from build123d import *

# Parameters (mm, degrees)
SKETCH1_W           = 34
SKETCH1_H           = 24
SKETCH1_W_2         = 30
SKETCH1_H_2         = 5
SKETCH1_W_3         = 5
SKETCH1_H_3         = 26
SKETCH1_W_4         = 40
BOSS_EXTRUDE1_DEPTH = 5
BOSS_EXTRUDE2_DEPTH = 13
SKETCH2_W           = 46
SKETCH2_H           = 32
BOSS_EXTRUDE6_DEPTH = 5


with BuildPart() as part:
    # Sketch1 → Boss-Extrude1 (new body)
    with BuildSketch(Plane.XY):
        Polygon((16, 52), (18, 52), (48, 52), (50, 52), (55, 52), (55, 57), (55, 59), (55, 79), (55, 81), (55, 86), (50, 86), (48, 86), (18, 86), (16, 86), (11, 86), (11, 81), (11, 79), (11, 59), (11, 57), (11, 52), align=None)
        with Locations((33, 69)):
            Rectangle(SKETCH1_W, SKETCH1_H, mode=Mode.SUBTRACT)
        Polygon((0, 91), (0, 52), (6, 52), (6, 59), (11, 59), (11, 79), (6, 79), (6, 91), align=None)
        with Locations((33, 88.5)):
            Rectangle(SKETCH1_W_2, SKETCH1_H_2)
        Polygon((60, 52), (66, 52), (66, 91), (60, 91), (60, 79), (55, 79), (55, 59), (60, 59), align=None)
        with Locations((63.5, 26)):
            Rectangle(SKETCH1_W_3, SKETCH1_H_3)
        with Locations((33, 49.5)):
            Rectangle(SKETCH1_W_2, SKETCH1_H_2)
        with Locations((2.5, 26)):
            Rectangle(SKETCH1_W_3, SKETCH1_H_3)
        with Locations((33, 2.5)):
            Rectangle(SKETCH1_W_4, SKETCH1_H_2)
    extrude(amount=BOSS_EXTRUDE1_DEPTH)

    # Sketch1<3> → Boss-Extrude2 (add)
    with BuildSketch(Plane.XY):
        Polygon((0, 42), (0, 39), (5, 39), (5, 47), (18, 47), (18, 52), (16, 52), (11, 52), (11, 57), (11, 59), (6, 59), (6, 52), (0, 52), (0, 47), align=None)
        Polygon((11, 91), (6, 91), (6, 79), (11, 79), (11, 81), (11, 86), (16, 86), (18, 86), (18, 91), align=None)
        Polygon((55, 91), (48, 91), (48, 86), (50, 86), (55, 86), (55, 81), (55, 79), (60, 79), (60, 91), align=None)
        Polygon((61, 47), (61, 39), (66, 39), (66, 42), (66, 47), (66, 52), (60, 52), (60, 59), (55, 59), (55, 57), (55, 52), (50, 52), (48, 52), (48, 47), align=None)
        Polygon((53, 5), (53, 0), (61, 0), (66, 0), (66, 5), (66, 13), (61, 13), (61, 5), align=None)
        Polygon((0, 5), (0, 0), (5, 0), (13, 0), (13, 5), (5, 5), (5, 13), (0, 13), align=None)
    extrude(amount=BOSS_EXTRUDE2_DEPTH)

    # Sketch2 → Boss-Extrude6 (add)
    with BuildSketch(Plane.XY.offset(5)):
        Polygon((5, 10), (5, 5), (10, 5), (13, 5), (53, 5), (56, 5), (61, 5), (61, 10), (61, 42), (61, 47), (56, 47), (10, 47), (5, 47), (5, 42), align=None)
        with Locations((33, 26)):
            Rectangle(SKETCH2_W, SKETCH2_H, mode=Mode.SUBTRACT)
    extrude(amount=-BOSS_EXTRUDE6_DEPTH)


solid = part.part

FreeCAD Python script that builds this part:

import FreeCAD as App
import Part
import Sketcher
from FreeCAD import Vector

doc = App.newDocument("Part")
body = doc.addObject("PartDesign::Body", "Body")
body.AllowCompound = True

# Sketch on XY plane
sketch1 = body.newObject("Sketcher::SketchObject", "Sketch")
sketch1.AttachmentSupport = (doc.getObject("XY_Plane"), [""])
sketch1.MapMode = "FlatFace"
sketch1.addGeometry([
    Part.LineSegment(Vector(55, 52, 0), Vector(55, 59, 0)),  # 0
    Part.LineSegment(Vector(55, 59, 0), Vector(60, 59, 0)),  # 1
    Part.LineSegment(Vector(60, 59, 0), Vector(60, 52, 0)),  # 2
    Part.LineSegment(Vector(60, 52, 0), Vector(66, 52, 0)),  # 3
    Part.LineSegment(Vector(66, 52, 0), Vector(66, 91, 0)),  # 4
    Part.LineSegment(Vector(66, 91, 0), Vector(60, 91, 0)),  # 5
    Part.LineSegment(Vector(60, 91, 0), Vector(60, 79, 0)),  # 6
    Part.LineSegment(Vector(60, 79, 0), Vector(55, 79, 0)),  # 7
    Part.LineSegment(Vector(55, 79, 0), Vector(55, 86, 0)),  # 8
    Part.LineSegment(Vector(55, 86, 0), Vector(48, 86, 0)),  # 9
    Part.LineSegment(Vector(48, 86, 0), Vector(48, 91, 0)),  # 10
    Part.LineSegment(Vector(48, 91, 0), Vector(18, 91, 0)),  # 11
    Part.LineSegment(Vector(18, 91, 0), Vector(18, 86, 0)),  # 12
    Part.LineSegment(Vector(18, 86, 0), Vector(11, 86, 0)),  # 13
    Part.LineSegment(Vector(11, 86, 0), Vector(11, 79, 0)),  # 14
    Part.LineSegment(Vector(11, 79, 0), Vector(6, 79, 0)),  # 15
    Part.LineSegment(Vector(6, 79, 0), Vector(6, 91, 0)),  # 16
    Part.LineSegment(Vector(6, 91, 0), Vector(0, 91, 0)),  # 17
    Part.LineSegment(Vector(0, 91, 0), Vector(0, 52, 0)),  # 18
    Part.LineSegment(Vector(0, 52, 0), Vector(6, 52, 0)),  # 19
    Part.LineSegment(Vector(6, 52, 0), Vector(6, 59, 0)),  # 20
    Part.LineSegment(Vector(6, 59, 0), Vector(11, 59, 0)),  # 21
    Part.LineSegment(Vector(11, 59, 0), Vector(11, 52, 0)),  # 22
    Part.LineSegment(Vector(11, 52, 0), Vector(18, 52, 0)),  # 23
    Part.LineSegment(Vector(18, 52, 0), Vector(18, 47, 0)),  # 24
    Part.LineSegment(Vector(18, 47, 0), Vector(48, 47, 0)),  # 25
    Part.LineSegment(Vector(48, 47, 0), Vector(48, 52, 0)),  # 26
    Part.LineSegment(Vector(48, 52, 0), Vector(55, 52, 0)),  # 27
    Part.LineSegment(Vector(50, 57, 0), Vector(16, 57, 0)),  # 28
    Part.LineSegment(Vector(16, 57, 0), Vector(16, 81, 0)),  # 29
    Part.LineSegment(Vector(16, 81, 0), Vector(50, 81, 0)),  # 30
    Part.LineSegment(Vector(50, 81, 0), Vector(50, 57, 0)),  # 31
    Part.LineSegment(Vector(61, 39, 0), Vector(61, 13, 0)),  # 32
    Part.LineSegment(Vector(61, 13, 0), Vector(66, 13, 0)),  # 33
    Part.LineSegment(Vector(66, 13, 0), Vector(66, 39, 0)),  # 34
    Part.LineSegment(Vector(66, 39, 0), Vector(61, 39, 0)),  # 35
    Part.LineSegment(Vector(0, 39, 0), Vector(0, 13, 0)),  # 36
    Part.LineSegment(Vector(0, 13, 0), Vector(5, 13, 0)),  # 37
    Part.LineSegment(Vector(5, 13, 0), Vector(5, 39, 0)),  # 38
    Part.LineSegment(Vector(5, 39, 0), Vector(0, 39, 0)),  # 39
    Part.LineSegment(Vector(13, 5, 0), Vector(13, 0, 0)),  # 40
    Part.LineSegment(Vector(13, 0, 0), Vector(53, 0, 0)),  # 41
    Part.LineSegment(Vector(53, 0, 0), Vector(53, 5, 0)),  # 42
    Part.LineSegment(Vector(53, 5, 0), Vector(13, 5, 0)),  # 43
], False)
sketch1.addConstraint([
    Sketcher.Constraint("Coincident", 0, 2, 1, 1),
    Sketcher.Constraint("Coincident", 1, 2, 2, 1),
    Sketcher.Constraint("Coincident", 2, 2, 3, 1),
    Sketcher.Constraint("Coincident", 3, 2, 4, 1),
    Sketcher.Constraint("Coincident", 4, 2, 5, 1),
    Sketcher.Constraint("Coincident", 5, 2, 6, 1),
    Sketcher.Constraint("Coincident", 6, 2, 7, 1),
    Sketcher.Constraint("Coincident", 7, 2, 8, 1),
    Sketcher.Constraint("Coincident", 8, 2, 9, 1),
    Sketcher.Constraint("Coincident", 9, 2, 10, 1),
    Sketcher.Constraint("Coincident", 10, 2, 11, 1),
    Sketcher.Constraint("Coincident", 11, 2, 12, 1),
    Sketcher.Constraint("Coincident", 12, 2, 13, 1),
    Sketcher.Constraint("Coincident", 13, 2, 14, 1),
    Sketcher.Constraint("Coincident", 14, 2, 15, 1),
    Sketcher.Constraint("Coincident", 15, 2, 16, 1),
    Sketcher.Constraint("Coincident", 16, 2, 17, 1),
    Sketcher.Constraint("Coincident", 17, 2, 18, 1),
    Sketcher.Constraint("Coincident", 18, 2, 19, 1),
    Sketcher.Constraint("Coincident", 19, 2, 20, 1),
    Sketcher.Constraint("Coincident", 20, 2, 21, 1),
    Sketcher.Constraint("Coincident", 21, 2, 22, 1),
    Sketcher.Constraint("Coincident", 22, 2, 23, 1),
    Sketcher.Constraint("Coincident", 23, 2, 24, 1),
    Sketcher.Constraint("Coincident", 24, 2, 25, 1),
    Sketcher.Constraint("Coincident", 25, 2, 26, 1),
    Sketcher.Constraint("Coincident", 26, 2, 27, 1),
    Sketcher.Constraint("Coincident", 27, 2, 0, 1),
    Sketcher.Constraint("Coincident", 28, 2, 29, 1),
    Sketcher.Constraint("Coincident", 29, 2, 30, 1),
    Sketcher.Constraint("Coincident", 30, 2, 31, 1),
    Sketcher.Constraint("Coincident", 31, 2, 28, 1),
    Sketcher.Constraint("Coincident", 32, 2, 33, 1),
    Sketcher.Constraint("Coincident", 33, 2, 34, 1),
    Sketcher.Constraint("Coincident", 34, 2, 35, 1),
    Sketcher.Constraint("Coincident", 35, 2, 32, 1),
    Sketcher.Constraint("Coincident", 36, 2, 37, 1),
    Sketcher.Constraint("Coincident", 37, 2, 38, 1),
    Sketcher.Constraint("Coincident", 38, 2, 39, 1),
    Sketcher.Constraint("Coincident", 39, 2, 36, 1),
    Sketcher.Constraint("Coincident", 40, 2, 41, 1),
    Sketcher.Constraint("Coincident", 41, 2, 42, 1),
    Sketcher.Constraint("Coincident", 42, 2, 43, 1),
    Sketcher.Constraint("Coincident", 43, 2, 40, 1),
    Sketcher.Constraint("Vertical", 0),
    Sketcher.Constraint("Horizontal", 1),
    Sketcher.Constraint("Vertical", 2),
    Sketcher.Constraint("Horizontal", 3),
    Sketcher.Constraint("Vertical", 4),
    Sketcher.Constraint("Horizontal", 5),
    Sketcher.Constraint("Vertical", 6),
    Sketcher.Constraint("Horizontal", 7),
    Sketcher.Constraint("Vertical", 8),
    Sketcher.Constraint("Horizontal", 9),
    Sketcher.Constraint("Vertical", 10),
    Sketcher.Constraint("Horizontal", 11),
    Sketcher.Constraint("Vertical", 12),
    Sketcher.Constraint("Horizontal", 13),
    Sketcher.Constraint("Vertical", 14),
    Sketcher.Constraint("Horizontal", 15),
    Sketcher.Constraint("Vertical", 16),
    Sketcher.Constraint("Horizontal", 17),
    Sketcher.Constraint("Vertical", 18),
    Sketcher.Constraint("Horizontal", 19),
    Sketcher.Constraint("Vertical", 20),
    Sketcher.Constraint("Horizontal", 21),
    Sketcher.Constraint("Vertical", 22),
    Sketcher.Constraint("Horizontal", 23),
    Sketcher.Constraint("Vertical", 24),
    Sketcher.Constraint("Horizontal", 25),
    Sketcher.Constraint("Vertical", 26),
    Sketcher.Constraint("Horizontal", 27),
    Sketcher.Constraint("Horizontal", 28),
    Sketcher.Constraint("Vertical", 29),
    Sketcher.Constraint("Horizontal", 30),
    Sketcher.Constraint("Vertical", 31),
    Sketcher.Constraint("Vertical", 32),
    Sketcher.Constraint("Horizontal", 33),
    Sketcher.Constraint("Vertical", 34),
    Sketcher.Constraint("Horizontal", 35),
    Sketcher.Constraint("Vertical", 36),
    Sketcher.Constraint("Horizontal", 37),
    Sketcher.Constraint("Vertical", 38),
    Sketcher.Constraint("Horizontal", 39),
    Sketcher.Constraint("Vertical", 40),
    Sketcher.Constraint("Horizontal", 41),
    Sketcher.Constraint("Vertical", 42),
    Sketcher.Constraint("Horizontal", 43),
    Sketcher.Constraint("PointOnObject", 17, 2, -2),
    Sketcher.Constraint("PointOnObject", 36, 2, -2),
    Sketcher.Constraint("PointOnObject", 40, 2, -1),
    Sketcher.Constraint("Horizontal", 5, 2, 10, 2),
    Sketcher.Constraint("Horizontal", 9, 2, 12, 2),
    Sketcher.Constraint("Horizontal", 7, 2, 14, 2),
    Sketcher.Constraint("Horizontal", 11, 2, 16, 2),
    Sketcher.Constraint("Horizontal", 3, 2, 18, 2),
    Sketcher.Constraint("Horizontal", 1, 2, 20, 2),
    Sketcher.Constraint("Horizontal", 19, 2, 22, 2),
    Sketcher.Constraint("Horizontal", 23, 2, 26, 2),
    Sketcher.Constraint("Horizontal", 33, 2, 36, 2),
    Sketcher.Constraint("Horizontal", 35, 2, 38, 2),
    Sketcher.Constraint("Vertical", 2, 2, 5, 2),
    Sketcher.Constraint("Vertical", 0, 2, 7, 2),
    Sketcher.Constraint("Vertical", 16, 2, 19, 2),
    Sketcher.Constraint("Vertical", 14, 2, 21, 2),
    Sketcher.Constraint("Vertical", 12, 2, 23, 2),
    Sketcher.Constraint("Vertical", 10, 2, 25, 2),
    Sketcher.Constraint("Vertical", 4, 2, 33, 2),
    Sketcher.Constraint("Equal", 9, 13),
    Sketcher.Constraint("Equal", 7, 15),
    Sketcher.Constraint("Equal", 5, 17),
    Sketcher.Constraint("Equal", 21, 33),
    Sketcher.Constraint("Equal", 35, 37),
    Sketcher.Constraint("Equal", 27, 0),
    Sketcher.Constraint("Equal", 2, 8),
    Sketcher.Constraint("Equal", 39, 10),
    Sketcher.Constraint("Equal", 12, 24),
    Sketcher.Constraint("Equal", 26, 40),
    Sketcher.Constraint("DistanceX", 1, 1, 1, 2, 5.0),
    Sketcher.Constraint("DistanceX", 3, 1, 3, 2, 6.0),
    Sketcher.Constraint("DistanceX", 9, 2, 9, 1, 7.0),
    Sketcher.Constraint("DistanceX", 11, 2, 11, 1, 30.0),
    Sketcher.Constraint("DistanceX", 28, 2, 28, 1, 34.0),
    Sketcher.Constraint("DistanceX", 41, 1, 41, 2, 40.0),
    Sketcher.Constraint("DistanceY", 4, 1, 4, 2, 39.0),
    Sketcher.Constraint("DistanceY", 29, 1, 29, 2, 24.0),
    Sketcher.Constraint("DistanceY", 32, 2, 32, 1, 26.0),
    Sketcher.Constraint("DistanceY", -1, 1, 0, 2, 59.0),
    Sketcher.Constraint("DistanceX", -1, 1, 28, 2, 16.0),
    Sketcher.Constraint("DistanceY", -1, 1, 28, 2, 57.0),
    Sketcher.Constraint("DistanceY", -1, 1, 32, 2, 13.0),
    Sketcher.Constraint("DistanceX", -1, 1, 40, 2, 13.0),
])
pad1 = body.newObject("PartDesign::Pad", "Pad")
pad1.Profile = sketch1
pad1.Length = 5

# Sketch on XY plane
sketch2 = body.newObject("Sketcher::SketchObject", "Sketch001")
sketch2.AttachmentSupport = (doc.getObject("XY_Plane"), [""])
sketch2.MapMode = "FlatFace"
sketch2.addGeometry([
    Part.LineSegment(Vector(0, 39, 0), Vector(5, 39, 0)),  # 0
    Part.LineSegment(Vector(5, 39, 0), Vector(5, 47, 0)),  # 1
    Part.LineSegment(Vector(5, 47, 0), Vector(18, 47, 0)),  # 2
    Part.LineSegment(Vector(18, 47, 0), Vector(18, 52, 0)),  # 3
    Part.LineSegment(Vector(18, 52, 0), Vector(11, 52, 0)),  # 4
    Part.LineSegment(Vector(11, 52, 0), Vector(11, 59, 0)),  # 5
    Part.LineSegment(Vector(11, 59, 0), Vector(6, 59, 0)),  # 6
    Part.LineSegment(Vector(6, 59, 0), Vector(6, 52, 0)),  # 7
    Part.LineSegment(Vector(6, 52, 0), Vector(0, 52, 0)),  # 8
    Part.LineSegment(Vector(0, 52, 0), Vector(0, 39, 0)),  # 9
    Part.LineSegment(Vector(6, 91, 0), Vector(6, 79, 0)),  # 10
    Part.LineSegment(Vector(6, 79, 0), Vector(11, 79, 0)),  # 11
    Part.LineSegment(Vector(11, 79, 0), Vector(11, 86, 0)),  # 12
    Part.LineSegment(Vector(11, 86, 0), Vector(18, 86, 0)),  # 13
    Part.LineSegment(Vector(18, 86, 0), Vector(18, 91, 0)),  # 14
    Part.LineSegment(Vector(18, 91, 0), Vector(6, 91, 0)),  # 15
    Part.LineSegment(Vector(48, 91, 0), Vector(48, 86, 0)),  # 16
    Part.LineSegment(Vector(48, 86, 0), Vector(55, 86, 0)),  # 17
    Part.LineSegment(Vector(55, 86, 0), Vector(55, 79, 0)),  # 18
    Part.LineSegment(Vector(55, 79, 0), Vector(60, 79, 0)),  # 19
    Part.LineSegment(Vector(60, 79, 0), Vector(60, 91, 0)),  # 20
    Part.LineSegment(Vector(60, 91, 0), Vector(48, 91, 0)),  # 21
    Part.LineSegment(Vector(61, 47, 0), Vector(61, 39, 0)),  # 22
    Part.LineSegment(Vector(61, 39, 0), Vector(66, 39, 0)),  # 23
    Part.LineSegment(Vector(66, 39, 0), Vector(66, 52, 0)),  # 24
    Part.LineSegment(Vector(66, 52, 0), Vector(60, 52, 0)),  # 25
    Part.LineSegment(Vector(60, 52, 0), Vector(60, 59, 0)),  # 26
    Part.LineSegment(Vector(60, 59, 0), Vector(55, 59, 0)),  # 27
    Part.LineSegment(Vector(55, 59, 0), Vector(55, 52, 0)),  # 28
    Part.LineSegment(Vector(55, 52, 0), Vector(48, 52, 0)),  # 29
    Part.LineSegment(Vector(48, 52, 0), Vector(48, 47, 0)),  # 30
    Part.LineSegment(Vector(48, 47, 0), Vector(61, 47, 0)),  # 31
    Part.LineSegment(Vector(53, 5, 0), Vector(53, 0, 0)),  # 32
    Part.LineSegment(Vector(53, 0, 0), Vector(66, 0, 0)),  # 33
    Part.LineSegment(Vector(66, 0, 0), Vector(66, 13, 0)),  # 34
    Part.LineSegment(Vector(66, 13, 0), Vector(61, 13, 0)),  # 35
    Part.LineSegment(Vector(61, 13, 0), Vector(61, 5, 0)),  # 36
    Part.LineSegment(Vector(61, 5, 0), Vector(53, 5, 0)),  # 37
    Part.LineSegment(Vector(0, 0, 0), Vector(13, 0, 0)),  # 38
    Part.LineSegment(Vector(13, 0, 0), Vector(13, 5, 0)),  # 39
    Part.LineSegment(Vector(13, 5, 0), Vector(5, 5, 0)),  # 40
    Part.LineSegment(Vector(5, 5, 0), Vector(5, 13, 0)),  # 41
    Part.LineSegment(Vector(5, 13, 0), Vector(0, 13, 0)),  # 42
    Part.LineSegment(Vector(0, 13, 0), Vector(0, 0, 0)),  # 43
], False)
sketch2.addConstraint([
    Sketcher.Constraint("Coincident", 0, 2, 1, 1),
    Sketcher.Constraint("Coincident", 1, 2, 2, 1),
    Sketcher.Constraint("Coincident", 2, 2, 3, 1),
    Sketcher.Constraint("Coincident", 3, 2, 4, 1),
    Sketcher.Constraint("Coincident", 4, 2, 5, 1),
    Sketcher.Constraint("Coincident", 5, 2, 6, 1),
    Sketcher.Constraint("Coincident", 6, 2, 7, 1),
    Sketcher.Constraint("Coincident", 7, 2, 8, 1),
    Sketcher.Constraint("Coincident", 8, 2, 9, 1),
    Sketcher.Constraint("Coincident", 9, 2, 0, 1),
    Sketcher.Constraint("Coincident", 10, 2, 11, 1),
    Sketcher.Constraint("Coincident", 11, 2, 12, 1),
    Sketcher.Constraint("Coincident", 12, 2, 13, 1),
    Sketcher.Constraint("Coincident", 13, 2, 14, 1),
    Sketcher.Constraint("Coincident", 14, 2, 15, 1),
    Sketcher.Constraint("Coincident", 15, 2, 10, 1),
    Sketcher.Constraint("Coincident", 16, 2, 17, 1),
    Sketcher.Constraint("Coincident", 17, 2, 18, 1),
    Sketcher.Constraint("Coincident", 18, 2, 19, 1),
    Sketcher.Constraint("Coincident", 19, 2, 20, 1),
    Sketcher.Constraint("Coincident", 20, 2, 21, 1),
    Sketcher.Constraint("Coincident", 21, 2, 16, 1),
    Sketcher.Constraint("Coincident", 22, 2, 23, 1),
    Sketcher.Constraint("Coincident", 23, 2, 24, 1),
    Sketcher.Constraint("Coincident", 24, 2, 25, 1),
    Sketcher.Constraint("Coincident", 25, 2, 26, 1),
    Sketcher.Constraint("Coincident", 26, 2, 27, 1),
    Sketcher.Constraint("Coincident", 27, 2, 28, 1),
    Sketcher.Constraint("Coincident", 28, 2, 29, 1),
    Sketcher.Constraint("Coincident", 29, 2, 30, 1),
    Sketcher.Constraint("Coincident", 30, 2, 31, 1),
    Sketcher.Constraint("Coincident", 31, 2, 22, 1),
    Sketcher.Constraint("Coincident", 32, 2, 33, 1),
    Sketcher.Constraint("Coincident", 33, 2, 34, 1),
    Sketcher.Constraint("Coincident", 34, 2, 35, 1),
    Sketcher.Constraint("Coincident", 35, 2, 36, 1),
    Sketcher.Constraint("Coincident", 36, 2, 37, 1),
    Sketcher.Constraint("Coincident", 37, 2, 32, 1),
    Sketcher.Constraint("Coincident", 38, 2, 39, 1),
    Sketcher.Constraint("Coincident", 39, 2, 40, 1),
    Sketcher.Constraint("Coincident", 40, 2, 41, 1),
    Sketcher.Constraint("Coincident", 41, 2, 42, 1),
    Sketcher.Constraint("Coincident", 42, 2, 43, 1),
    Sketcher.Constraint("Coincident", 43, 2, 38, 1),
    Sketcher.Constraint("Horizontal", 0),
    Sketcher.Constraint("Vertical", 1),
    Sketcher.Constraint("Horizontal", 2),
    Sketcher.Constraint("Vertical", 3),
    Sketcher.Constraint("Horizontal", 4),
    Sketcher.Constraint("Vertical", 5),
    Sketcher.Constraint("Horizontal", 6),
    Sketcher.Constraint("Vertical", 7),
    Sketcher.Constraint("Horizontal", 8),
    Sketcher.Constraint("Vertical", 9),
    Sketcher.Constraint("Vertical", 10),
    Sketcher.Constraint("Horizontal", 11),
    Sketcher.Constraint("Vertical", 12),
    Sketcher.Constraint("Horizontal", 13),
    Sketcher.Constraint("Vertical", 14),
    Sketcher.Constraint("Horizontal", 15),
    Sketcher.Constraint("Vertical", 16),
    Sketcher.Constraint("Horizontal", 17),
    Sketcher.Constraint("Vertical", 18),
    Sketcher.Constraint("Horizontal", 19),
    Sketcher.Constraint("Vertical", 20),
    Sketcher.Constraint("Horizontal", 21),
    Sketcher.Constraint("Vertical", 22),
    Sketcher.Constraint("Horizontal", 23),
    Sketcher.Constraint("Vertical", 24),
    Sketcher.Constraint("Horizontal", 25),
    Sketcher.Constraint("Vertical", 26),
    Sketcher.Constraint("Horizontal", 27),
    Sketcher.Constraint("Vertical", 28),
    Sketcher.Constraint("Horizontal", 29),
    Sketcher.Constraint("Vertical", 30),
    Sketcher.Constraint("Horizontal", 31),
    Sketcher.Constraint("Vertical", 32),
    Sketcher.Constraint("Horizontal", 33),
    Sketcher.Constraint("Vertical", 34),
    Sketcher.Constraint("Horizontal", 35),
    Sketcher.Constraint("Vertical", 36),
    Sketcher.Constraint("Horizontal", 37),
    Sketcher.Constraint("Horizontal", 38),
    Sketcher.Constraint("Vertical", 39),
    Sketcher.Constraint("Horizontal", 40),
    Sketcher.Constraint("Vertical", 41),
    Sketcher.Constraint("Horizontal", 42),
    Sketcher.Constraint("Vertical", 43),
    Sketcher.Constraint("Coincident", 43, 2, -1, 1),
    Sketcher.Constraint("PointOnObject", 8, 2, -2),
    Sketcher.Constraint("PointOnObject", 32, 2, -1),
    Sketcher.Constraint("Horizontal", 4, 2, 7, 2),
    Sketcher.Constraint("Horizontal", 13, 2, 16, 2),
    Sketcher.Constraint("Horizontal", 11, 2, 18, 2),
    Sketcher.Constraint("Horizontal", 15, 2, 20, 2),
    Sketcher.Constraint("Horizontal", 9, 2, 22, 2),
    Sketcher.Constraint("Horizontal", 8, 2, 24, 2),
    Sketcher.Constraint("Horizontal", 6, 2, 26, 2),
    Sketcher.Constraint("Horizontal", 25, 2, 28, 2),
    Sketcher.Constraint("Horizontal", 2, 2, 30, 2),
    Sketcher.Constraint("Horizontal", 37, 2, 39, 2),
    Sketcher.Constraint("Horizontal", 35, 2, 41, 2),
    Sketcher.Constraint("Vertical", 7, 2, 10, 2),
    Sketcher.Constraint("Vertical", 5, 2, 11, 2),
    Sketcher.Constraint("Vertical", 3, 2, 13, 2),
    Sketcher.Constraint("Vertical", 20, 2, 25, 2),
    Sketcher.Constraint("Vertical", 18, 2, 27, 2),
    Sketcher.Constraint("Vertical", 21, 2, 29, 2),
    Sketcher.Constraint("Vertical", 24, 2, 33, 2),
    Sketcher.Constraint("Vertical", 31, 2, 35, 2),
    Sketcher.Constraint("Vertical", 1, 2, 40, 2),
    Sketcher.Constraint("Equal", 0, 6),
    Sketcher.Constraint("Equal", 13, 17),
    Sketcher.Constraint("Equal", 11, 19),
    Sketcher.Constraint("Equal", 19, 23),
    Sketcher.Constraint("Equal", 8, 25),
    Sketcher.Constraint("Equal", 31, 33),
    Sketcher.Constraint("Equal", 33, 38),
    Sketcher.Constraint("Equal", 40, 1),
    Sketcher.Constraint("Equal", 42, 3),
    Sketcher.Constraint("Equal", 29, 5),
    Sketcher.Constraint("Equal", 21, 10),
    Sketcher.Constraint("Equal", 7, 12),
    Sketcher.Constraint("Equal", 30, 32),
    Sketcher.Constraint("Equal", 24, 34),
    Sketcher.Constraint("DistanceX", 0, 1, 0, 2, 5.0),
    Sketcher.Constraint("DistanceX", 2, 1, 2, 2, 13.0),
    Sketcher.Constraint("DistanceX", 4, 2, 4, 1, 7.0),
    Sketcher.Constraint("DistanceY", -1, 1, 0, 2, 39.0),
    Sketcher.Constraint("DistanceY", -1, 1, 10, 2, 79.0),
    Sketcher.Constraint("DistanceX", -1, 1, 16, 2, 48.0),
])
pad2 = body.newObject("PartDesign::Pad", "Pad001")
pad2.Profile = sketch2
pad2.Length = 13

# Sketch on XY plane
sketch3 = body.newObject("Sketcher::SketchObject", "Sketch002")
sketch3.AttachmentSupport = (doc.getObject("XY_Plane"), [""])
sketch3.MapMode = "FlatFace"
sketch3.AttachmentOffset = App.Placement(Vector(0, 0, 5), App.Rotation())
sketch3.addGeometry([
    Part.LineSegment(Vector(5, 5, 0), Vector(61, 5, 0)),  # 0
    Part.LineSegment(Vector(61, 5, 0), Vector(61, 47, 0)),  # 1
    Part.LineSegment(Vector(61, 47, 0), Vector(5, 47, 0)),  # 2
    Part.LineSegment(Vector(5, 47, 0), Vector(5, 5, 0)),  # 3
    Part.LineSegment(Vector(56, 10, 0), Vector(10, 10, 0)),  # 4
    Part.LineSegment(Vector(10, 10, 0), Vector(10, 42, 0)),  # 5
    Part.LineSegment(Vector(10, 42, 0), Vector(56, 42, 0)),  # 6
    Part.LineSegment(Vector(56, 42, 0), Vector(56, 10, 0)),  # 7
], False)
sketch3.addConstraint([
    Sketcher.Constraint("Coincident", 0, 2, 1, 1),
    Sketcher.Constraint("Coincident", 1, 2, 2, 1),
    Sketcher.Constraint("Coincident", 2, 2, 3, 1),
    Sketcher.Constraint("Coincident", 3, 2, 0, 1),
    Sketcher.Constraint("Coincident", 4, 2, 5, 1),
    Sketcher.Constraint("Coincident", 5, 2, 6, 1),
    Sketcher.Constraint("Coincident", 6, 2, 7, 1),
    Sketcher.Constraint("Coincident", 7, 2, 4, 1),
    Sketcher.Constraint("Horizontal", 0),
    Sketcher.Constraint("Vertical", 1),
    Sketcher.Constraint("Horizontal", 2),
    Sketcher.Constraint("Vertical", 3),
    Sketcher.Constraint("Horizontal", 4),
    Sketcher.Constraint("Vertical", 5),
    Sketcher.Constraint("Horizontal", 6),
    Sketcher.Constraint("Vertical", 7),
    Sketcher.Constraint("DistanceX", 0, 1, 0, 2, 56.0),
    Sketcher.Constraint("DistanceX", 4, 2, 4, 1, 46.0),
    Sketcher.Constraint("DistanceY", 1, 1, 1, 2, 42.0),
    Sketcher.Constraint("DistanceY", 5, 1, 5, 2, 32.0),
    Sketcher.Constraint("DistanceX", -1, 1, 0, 2, 61.0),
    Sketcher.Constraint("DistanceY", -1, 1, 0, 2, 5.0),
    Sketcher.Constraint("DistanceX", -1, 1, 4, 2, 10.0),
    Sketcher.Constraint("DistanceY", -1, 1, 4, 2, 10.0),
])
pad3 = body.newObject("PartDesign::Pad", "Pad002")
pad3.Profile = sketch3
pad3.Length = 5
pad3.Reversed = True

doc.recompute()
